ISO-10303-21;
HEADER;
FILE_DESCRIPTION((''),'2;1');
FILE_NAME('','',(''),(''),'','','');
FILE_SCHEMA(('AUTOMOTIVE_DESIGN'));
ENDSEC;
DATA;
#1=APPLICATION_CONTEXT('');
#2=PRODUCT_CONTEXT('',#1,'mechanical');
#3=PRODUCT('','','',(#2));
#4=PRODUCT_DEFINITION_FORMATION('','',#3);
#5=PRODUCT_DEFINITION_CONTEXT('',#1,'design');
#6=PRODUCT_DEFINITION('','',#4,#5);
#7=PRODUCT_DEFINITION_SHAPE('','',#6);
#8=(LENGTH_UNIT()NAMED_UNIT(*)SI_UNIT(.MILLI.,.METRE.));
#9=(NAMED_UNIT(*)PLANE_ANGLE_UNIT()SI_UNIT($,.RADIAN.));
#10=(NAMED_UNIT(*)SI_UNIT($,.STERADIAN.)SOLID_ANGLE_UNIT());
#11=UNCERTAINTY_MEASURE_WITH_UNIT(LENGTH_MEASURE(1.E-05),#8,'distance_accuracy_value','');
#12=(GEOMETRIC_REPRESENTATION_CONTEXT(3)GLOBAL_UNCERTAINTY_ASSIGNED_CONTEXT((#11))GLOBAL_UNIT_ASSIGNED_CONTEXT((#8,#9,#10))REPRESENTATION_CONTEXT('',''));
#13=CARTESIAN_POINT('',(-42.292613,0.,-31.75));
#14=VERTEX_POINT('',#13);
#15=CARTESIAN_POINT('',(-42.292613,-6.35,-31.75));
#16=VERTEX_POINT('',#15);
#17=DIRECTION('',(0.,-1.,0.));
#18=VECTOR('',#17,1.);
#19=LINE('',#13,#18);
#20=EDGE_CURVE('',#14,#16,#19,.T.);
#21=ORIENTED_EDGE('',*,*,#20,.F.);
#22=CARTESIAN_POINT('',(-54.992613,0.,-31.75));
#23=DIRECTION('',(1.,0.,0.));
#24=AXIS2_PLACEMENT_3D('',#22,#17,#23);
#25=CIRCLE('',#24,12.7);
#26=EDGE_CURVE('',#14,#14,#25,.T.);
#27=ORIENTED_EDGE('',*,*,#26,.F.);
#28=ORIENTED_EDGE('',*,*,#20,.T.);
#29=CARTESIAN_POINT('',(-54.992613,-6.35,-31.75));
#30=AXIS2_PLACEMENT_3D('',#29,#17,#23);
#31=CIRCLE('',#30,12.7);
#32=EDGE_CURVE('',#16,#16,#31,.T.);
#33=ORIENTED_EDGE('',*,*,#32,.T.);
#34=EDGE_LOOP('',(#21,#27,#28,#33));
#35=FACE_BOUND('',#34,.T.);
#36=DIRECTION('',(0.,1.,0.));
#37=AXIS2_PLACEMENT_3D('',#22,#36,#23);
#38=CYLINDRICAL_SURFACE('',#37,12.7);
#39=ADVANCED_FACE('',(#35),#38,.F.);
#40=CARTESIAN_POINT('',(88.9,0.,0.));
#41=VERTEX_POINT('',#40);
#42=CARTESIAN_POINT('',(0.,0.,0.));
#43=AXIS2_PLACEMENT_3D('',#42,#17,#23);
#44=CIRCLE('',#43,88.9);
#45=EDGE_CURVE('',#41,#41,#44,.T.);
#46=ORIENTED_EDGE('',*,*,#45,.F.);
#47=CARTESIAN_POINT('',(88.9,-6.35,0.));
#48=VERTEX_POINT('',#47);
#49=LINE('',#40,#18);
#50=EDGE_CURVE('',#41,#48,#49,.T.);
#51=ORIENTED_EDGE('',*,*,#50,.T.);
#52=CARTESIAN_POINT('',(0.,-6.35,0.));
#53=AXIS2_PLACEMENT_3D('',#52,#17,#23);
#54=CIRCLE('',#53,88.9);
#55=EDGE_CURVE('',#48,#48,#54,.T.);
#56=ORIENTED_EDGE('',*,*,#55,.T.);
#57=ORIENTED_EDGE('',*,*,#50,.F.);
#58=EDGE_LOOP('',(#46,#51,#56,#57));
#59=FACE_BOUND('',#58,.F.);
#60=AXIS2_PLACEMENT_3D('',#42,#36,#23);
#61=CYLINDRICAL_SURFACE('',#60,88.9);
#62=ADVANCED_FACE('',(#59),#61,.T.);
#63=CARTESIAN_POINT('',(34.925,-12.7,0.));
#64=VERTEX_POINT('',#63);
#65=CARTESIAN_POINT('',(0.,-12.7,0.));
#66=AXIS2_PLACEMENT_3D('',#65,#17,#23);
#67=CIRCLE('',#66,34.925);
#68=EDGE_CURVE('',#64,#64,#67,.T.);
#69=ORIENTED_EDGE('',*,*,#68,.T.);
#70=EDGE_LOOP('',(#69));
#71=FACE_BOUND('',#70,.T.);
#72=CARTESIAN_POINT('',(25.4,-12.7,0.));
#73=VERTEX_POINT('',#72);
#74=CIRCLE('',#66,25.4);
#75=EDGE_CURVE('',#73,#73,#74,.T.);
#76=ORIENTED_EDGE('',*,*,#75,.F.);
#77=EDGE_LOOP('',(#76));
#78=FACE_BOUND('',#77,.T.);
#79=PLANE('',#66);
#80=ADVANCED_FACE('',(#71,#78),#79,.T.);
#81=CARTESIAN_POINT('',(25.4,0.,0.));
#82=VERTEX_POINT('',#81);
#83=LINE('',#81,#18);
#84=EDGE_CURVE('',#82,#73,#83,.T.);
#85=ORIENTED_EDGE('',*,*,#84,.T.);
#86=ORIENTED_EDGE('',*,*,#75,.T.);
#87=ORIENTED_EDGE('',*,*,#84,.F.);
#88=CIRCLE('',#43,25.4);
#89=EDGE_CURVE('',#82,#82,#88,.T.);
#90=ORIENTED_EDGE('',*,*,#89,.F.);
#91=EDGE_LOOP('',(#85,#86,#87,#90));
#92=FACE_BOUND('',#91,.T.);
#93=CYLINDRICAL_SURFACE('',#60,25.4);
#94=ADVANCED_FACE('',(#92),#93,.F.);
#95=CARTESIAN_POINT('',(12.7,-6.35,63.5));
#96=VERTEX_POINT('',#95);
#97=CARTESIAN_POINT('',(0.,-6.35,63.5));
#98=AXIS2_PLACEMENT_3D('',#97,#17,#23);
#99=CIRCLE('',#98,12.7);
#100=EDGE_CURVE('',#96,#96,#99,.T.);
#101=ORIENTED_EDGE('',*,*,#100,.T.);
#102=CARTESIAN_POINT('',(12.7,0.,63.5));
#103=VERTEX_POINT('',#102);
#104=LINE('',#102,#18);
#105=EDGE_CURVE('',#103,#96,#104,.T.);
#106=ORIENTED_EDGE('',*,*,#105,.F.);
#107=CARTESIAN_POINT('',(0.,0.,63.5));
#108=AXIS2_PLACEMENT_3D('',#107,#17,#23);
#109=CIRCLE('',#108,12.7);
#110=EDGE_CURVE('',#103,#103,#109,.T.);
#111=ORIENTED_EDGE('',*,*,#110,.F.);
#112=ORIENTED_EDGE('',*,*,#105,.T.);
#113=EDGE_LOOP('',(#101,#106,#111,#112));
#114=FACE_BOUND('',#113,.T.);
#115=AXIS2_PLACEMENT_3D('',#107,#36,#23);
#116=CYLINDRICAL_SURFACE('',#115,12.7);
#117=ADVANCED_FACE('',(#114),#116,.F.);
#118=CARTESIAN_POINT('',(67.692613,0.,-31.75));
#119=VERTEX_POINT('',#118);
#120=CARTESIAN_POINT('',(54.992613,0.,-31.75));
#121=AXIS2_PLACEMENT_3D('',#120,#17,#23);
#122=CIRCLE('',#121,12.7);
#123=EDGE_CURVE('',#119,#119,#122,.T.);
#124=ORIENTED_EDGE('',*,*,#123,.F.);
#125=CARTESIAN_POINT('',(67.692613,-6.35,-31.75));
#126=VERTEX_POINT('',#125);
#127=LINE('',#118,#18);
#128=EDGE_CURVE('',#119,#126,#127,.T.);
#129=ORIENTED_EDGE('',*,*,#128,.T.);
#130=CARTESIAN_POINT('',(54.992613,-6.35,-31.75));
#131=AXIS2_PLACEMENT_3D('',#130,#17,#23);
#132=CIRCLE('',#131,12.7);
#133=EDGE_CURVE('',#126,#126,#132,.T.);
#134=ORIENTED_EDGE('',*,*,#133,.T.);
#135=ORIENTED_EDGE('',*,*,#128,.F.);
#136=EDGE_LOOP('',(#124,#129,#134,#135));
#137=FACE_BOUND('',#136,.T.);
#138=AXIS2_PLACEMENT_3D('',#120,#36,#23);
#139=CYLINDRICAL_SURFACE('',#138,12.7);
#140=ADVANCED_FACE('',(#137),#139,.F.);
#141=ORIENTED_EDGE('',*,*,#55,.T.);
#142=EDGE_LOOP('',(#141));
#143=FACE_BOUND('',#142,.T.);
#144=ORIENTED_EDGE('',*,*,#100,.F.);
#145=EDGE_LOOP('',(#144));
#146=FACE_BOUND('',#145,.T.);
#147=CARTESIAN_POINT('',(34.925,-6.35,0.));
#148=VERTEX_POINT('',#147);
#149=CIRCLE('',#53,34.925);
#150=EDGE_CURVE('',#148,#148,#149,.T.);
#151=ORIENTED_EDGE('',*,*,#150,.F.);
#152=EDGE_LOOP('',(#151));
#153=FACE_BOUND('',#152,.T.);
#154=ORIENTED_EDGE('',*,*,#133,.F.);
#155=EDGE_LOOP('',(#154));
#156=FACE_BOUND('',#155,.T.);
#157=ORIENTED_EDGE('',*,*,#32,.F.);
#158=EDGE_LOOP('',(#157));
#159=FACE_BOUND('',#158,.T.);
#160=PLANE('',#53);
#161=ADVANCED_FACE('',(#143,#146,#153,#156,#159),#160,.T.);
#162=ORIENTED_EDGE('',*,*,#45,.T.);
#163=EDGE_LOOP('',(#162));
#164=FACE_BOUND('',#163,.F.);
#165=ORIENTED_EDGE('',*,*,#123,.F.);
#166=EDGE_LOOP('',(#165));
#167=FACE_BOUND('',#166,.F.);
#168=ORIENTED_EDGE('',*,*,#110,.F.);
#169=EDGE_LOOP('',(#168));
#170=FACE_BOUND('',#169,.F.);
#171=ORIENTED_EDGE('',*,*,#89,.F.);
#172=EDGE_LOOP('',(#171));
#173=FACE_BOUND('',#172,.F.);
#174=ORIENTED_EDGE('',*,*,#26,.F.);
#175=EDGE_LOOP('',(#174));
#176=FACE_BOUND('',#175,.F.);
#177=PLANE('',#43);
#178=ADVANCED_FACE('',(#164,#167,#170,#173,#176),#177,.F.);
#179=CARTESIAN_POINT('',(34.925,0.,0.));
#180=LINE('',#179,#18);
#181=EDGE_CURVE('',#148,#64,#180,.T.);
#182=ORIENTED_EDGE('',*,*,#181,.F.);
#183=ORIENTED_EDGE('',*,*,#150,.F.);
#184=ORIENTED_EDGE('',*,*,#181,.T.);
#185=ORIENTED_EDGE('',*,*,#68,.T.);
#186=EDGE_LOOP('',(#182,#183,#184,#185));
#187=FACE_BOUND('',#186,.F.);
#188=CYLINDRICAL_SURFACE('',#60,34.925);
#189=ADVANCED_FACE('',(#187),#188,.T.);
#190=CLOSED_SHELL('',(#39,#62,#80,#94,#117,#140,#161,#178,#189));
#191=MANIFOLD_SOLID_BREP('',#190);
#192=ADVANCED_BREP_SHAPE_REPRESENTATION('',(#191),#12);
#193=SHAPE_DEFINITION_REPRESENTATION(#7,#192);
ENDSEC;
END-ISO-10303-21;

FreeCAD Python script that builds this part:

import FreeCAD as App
import Part
import Sketcher
Q = App.Units.Quantity

doc = App.newDocument("Part")
params = doc.addObject("Spreadsheet::Sheet", "Params")
for row, (alias, value) in enumerate([
    ("sketch1_diameter", "7 in"),
    ("sketch1_diameter2", "1 in"),
    ("sketch1_diameter3", "2.75 in"),
    ("pad1_length", "0.25 in"),
    ("sketch2_diameter", "2 in"),
    ("sketch2_diameter2", "2.75 in"),
    ("pad2_length", "0.5 in"),
], start=1):
    params.set(f"A{row}", alias)
    params.set(f"B{row}", "=" + value)
    params.setAlias(f"B{row}", alias)

body = doc.addObject("PartDesign::Body", "Body")

# Sketch on XZ plane
sketch1 = doc.addObject("Sketcher::SketchObject", "Sketch")
body.addObject(sketch1)
sketch1.AttachmentSupport = (doc.XZ_Plane, [""])
sketch1.MapMode = "FlatFace"
sketch1.addGeometry(Part.Circle(App.Vector(0, 0, 0), App.Vector(0, 0, 1), 89), False)
sketch1.addGeometry(Part.Circle(App.Vector(-55, -32, 0), App.Vector(0, 0, 1), 13), False)
sketch1.addGeometry(Part.Circle(App.Vector(55, -32, 0), App.Vector(0, 0, 1), 13), False)
sketch1.addGeometry(Part.Circle(App.Vector(0, 0, 0), App.Vector(0, 0, 1), 35), False)
sketch1.addGeometry(Part.Circle(App.Vector(0, 64, 0), App.Vector(0, 0, 1), 13), False)
sketch1.addConstraint(Sketcher.Constraint("Coincident", 0, 3, -1, 1))
sketch1.addConstraint(Sketcher.Constraint("Coincident", 3, 3, -1, 1))
sketch1.addConstraint(Sketcher.Constraint("Equal", 1, 2))
sketch1.addConstraint(Sketcher.Constraint("Equal", 2, 4))
sketch1.addConstraint(Sketcher.Constraint("Symmetric", 1, 3, 2, 3, -2))
sketch1.addConstraint(Sketcher.Constraint("PointOnObject", 4, 3, -2))
sketch1.addConstraint(Sketcher.Constraint("Diameter", 0, Q("7 in")))
sketch1.addConstraint(Sketcher.Constraint("Diameter", 1, Q("1 in")))
sketch1.addConstraint(Sketcher.Constraint("Diameter", 3, Q("2.75 in")))
sketch1.addConstraint(Sketcher.Constraint("DistanceY", -1, 1, 4, 3, Q("2.5 in")))
sketch1.addConstraint(Sketcher.Constraint("DistanceY", 1, 3, -1, 1, Q("1.25 in")))
sketch1.addConstraint(Sketcher.Constraint("DistanceX", 1, 3, -1, 1, Q("54.992613 mm")))
sketch1.setExpression("Constraints[6]", "Params.sketch1_diameter")
sketch1.setExpression("Constraints[7]", "Params.sketch1_diameter2")
sketch1.setExpression("Constraints[8]", "Params.sketch1_diameter3")
pad1 = doc.addObject("PartDesign::Pad", "Pad")
body.addObject(pad1)
pad1.Profile = sketch1
pad1.setExpression("Length", "Params.pad1_length")

# Sketch on XZ plane
sketch2 = doc.addObject("Sketcher::SketchObject", "Sketch001")
body.addObject(sketch2)
sketch2.AttachmentSupport = (doc.XZ_Plane, [""])
sketch2.MapMode = "FlatFace"
sketch2.addGeometry(Part.Circle(App.Vector(0, 0, 0), App.Vector(0, 0, 1), 35), False)
sketch2.addGeometry(Part.Circle(App.Vector(0, 0, 0), App.Vector(0, 0, 1), 25), False)
sketch2.addConstraint(Sketcher.Constraint("Coincident", 0, 3, -1, 1))
sketch2.addConstraint(Sketcher.Constraint("Coincident", 1, 3, -1, 1))
sketch2.addConstraint(Sketcher.Constraint("Diameter", 1, Q("2 in")))
sketch2.addConstraint(Sketcher.Constraint("Diameter", 0, Q("2.75 in")))
sketch2.setExpression("Constraints[2]", "Params.sketch2_diameter")
sketch2.setExpression("Constraints[3]", "Params.sketch2_diameter2")
pad2 = doc.addObject("PartDesign::Pad", "Pad001")
body.addObject(pad2)
pad2.Profile = sketch2
pad2.setExpression("Length", "Params.pad2_length")

doc.recompute()
